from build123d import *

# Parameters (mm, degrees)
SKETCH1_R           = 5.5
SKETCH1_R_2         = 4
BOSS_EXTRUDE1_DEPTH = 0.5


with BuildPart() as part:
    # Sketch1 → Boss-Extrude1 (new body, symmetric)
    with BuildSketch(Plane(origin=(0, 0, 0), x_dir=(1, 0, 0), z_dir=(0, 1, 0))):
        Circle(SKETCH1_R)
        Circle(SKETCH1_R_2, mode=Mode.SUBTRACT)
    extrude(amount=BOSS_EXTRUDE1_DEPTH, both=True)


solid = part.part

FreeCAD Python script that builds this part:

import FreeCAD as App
import Part
import Sketcher

V = App.Vector
Q = App.Units.Quantity

doc = App.newDocument("Part")
params = doc.addObject("Spreadsheet::Sheet", "Params")
for row, (alias, value) in enumerate([
    ("sketch1_diameter", "11 mm"),
    ("sketch1_diameter2", "8 mm"),
    ("pad1_length", "1 mm"),
], start=1):
    params.set(f"A{row}", alias)
    params.set(f"B{row}", "=" + value)
    params.setAlias(f"B{row}", alias)

body = doc.addObject("PartDesign::Body", "Body")

# Sketch on XZ plane
sketch1 = body.newObject("Sketcher::SketchObject", "Sketch")
sketch1.AttachmentSupport = (doc.getObject("XZ_Plane"), [""])
sketch1.MapMode = "FlatFace"
sketch1.addGeometry(Part.Circle(V(0, 0, 0), V(0, 0, 1), 5.5), False)
sketch1.addGeometry(Part.Circle(V(0, 0, 0), V(0, 0, 1), 4), False)
sketch1.addConstraint(Sketcher.Constraint("Coincident", 0, 3, -1, 1))
sketch1.addConstraint(Sketcher.Constraint("Coincident", 1, 3, -1, 1))
sketch1.addConstraint(Sketcher.Constraint("Diameter", 0, Q("11 mm")))
sketch1.addConstraint(Sketcher.Constraint("Diameter", 1, Q("8 mm")))
sketch1.setExpression("Constraints[2]", "Params.sketch1_diameter")
sketch1.setExpression("Constraints[3]", "Params.sketch1_diameter2")
pad1 = body.newObject("PartDesign::Pad", "Pad")
pad1.Profile = sketch1
pad1.setExpression("Length", "Params.pad1_length")
pad1.Midplane = True

doc.recompute()
